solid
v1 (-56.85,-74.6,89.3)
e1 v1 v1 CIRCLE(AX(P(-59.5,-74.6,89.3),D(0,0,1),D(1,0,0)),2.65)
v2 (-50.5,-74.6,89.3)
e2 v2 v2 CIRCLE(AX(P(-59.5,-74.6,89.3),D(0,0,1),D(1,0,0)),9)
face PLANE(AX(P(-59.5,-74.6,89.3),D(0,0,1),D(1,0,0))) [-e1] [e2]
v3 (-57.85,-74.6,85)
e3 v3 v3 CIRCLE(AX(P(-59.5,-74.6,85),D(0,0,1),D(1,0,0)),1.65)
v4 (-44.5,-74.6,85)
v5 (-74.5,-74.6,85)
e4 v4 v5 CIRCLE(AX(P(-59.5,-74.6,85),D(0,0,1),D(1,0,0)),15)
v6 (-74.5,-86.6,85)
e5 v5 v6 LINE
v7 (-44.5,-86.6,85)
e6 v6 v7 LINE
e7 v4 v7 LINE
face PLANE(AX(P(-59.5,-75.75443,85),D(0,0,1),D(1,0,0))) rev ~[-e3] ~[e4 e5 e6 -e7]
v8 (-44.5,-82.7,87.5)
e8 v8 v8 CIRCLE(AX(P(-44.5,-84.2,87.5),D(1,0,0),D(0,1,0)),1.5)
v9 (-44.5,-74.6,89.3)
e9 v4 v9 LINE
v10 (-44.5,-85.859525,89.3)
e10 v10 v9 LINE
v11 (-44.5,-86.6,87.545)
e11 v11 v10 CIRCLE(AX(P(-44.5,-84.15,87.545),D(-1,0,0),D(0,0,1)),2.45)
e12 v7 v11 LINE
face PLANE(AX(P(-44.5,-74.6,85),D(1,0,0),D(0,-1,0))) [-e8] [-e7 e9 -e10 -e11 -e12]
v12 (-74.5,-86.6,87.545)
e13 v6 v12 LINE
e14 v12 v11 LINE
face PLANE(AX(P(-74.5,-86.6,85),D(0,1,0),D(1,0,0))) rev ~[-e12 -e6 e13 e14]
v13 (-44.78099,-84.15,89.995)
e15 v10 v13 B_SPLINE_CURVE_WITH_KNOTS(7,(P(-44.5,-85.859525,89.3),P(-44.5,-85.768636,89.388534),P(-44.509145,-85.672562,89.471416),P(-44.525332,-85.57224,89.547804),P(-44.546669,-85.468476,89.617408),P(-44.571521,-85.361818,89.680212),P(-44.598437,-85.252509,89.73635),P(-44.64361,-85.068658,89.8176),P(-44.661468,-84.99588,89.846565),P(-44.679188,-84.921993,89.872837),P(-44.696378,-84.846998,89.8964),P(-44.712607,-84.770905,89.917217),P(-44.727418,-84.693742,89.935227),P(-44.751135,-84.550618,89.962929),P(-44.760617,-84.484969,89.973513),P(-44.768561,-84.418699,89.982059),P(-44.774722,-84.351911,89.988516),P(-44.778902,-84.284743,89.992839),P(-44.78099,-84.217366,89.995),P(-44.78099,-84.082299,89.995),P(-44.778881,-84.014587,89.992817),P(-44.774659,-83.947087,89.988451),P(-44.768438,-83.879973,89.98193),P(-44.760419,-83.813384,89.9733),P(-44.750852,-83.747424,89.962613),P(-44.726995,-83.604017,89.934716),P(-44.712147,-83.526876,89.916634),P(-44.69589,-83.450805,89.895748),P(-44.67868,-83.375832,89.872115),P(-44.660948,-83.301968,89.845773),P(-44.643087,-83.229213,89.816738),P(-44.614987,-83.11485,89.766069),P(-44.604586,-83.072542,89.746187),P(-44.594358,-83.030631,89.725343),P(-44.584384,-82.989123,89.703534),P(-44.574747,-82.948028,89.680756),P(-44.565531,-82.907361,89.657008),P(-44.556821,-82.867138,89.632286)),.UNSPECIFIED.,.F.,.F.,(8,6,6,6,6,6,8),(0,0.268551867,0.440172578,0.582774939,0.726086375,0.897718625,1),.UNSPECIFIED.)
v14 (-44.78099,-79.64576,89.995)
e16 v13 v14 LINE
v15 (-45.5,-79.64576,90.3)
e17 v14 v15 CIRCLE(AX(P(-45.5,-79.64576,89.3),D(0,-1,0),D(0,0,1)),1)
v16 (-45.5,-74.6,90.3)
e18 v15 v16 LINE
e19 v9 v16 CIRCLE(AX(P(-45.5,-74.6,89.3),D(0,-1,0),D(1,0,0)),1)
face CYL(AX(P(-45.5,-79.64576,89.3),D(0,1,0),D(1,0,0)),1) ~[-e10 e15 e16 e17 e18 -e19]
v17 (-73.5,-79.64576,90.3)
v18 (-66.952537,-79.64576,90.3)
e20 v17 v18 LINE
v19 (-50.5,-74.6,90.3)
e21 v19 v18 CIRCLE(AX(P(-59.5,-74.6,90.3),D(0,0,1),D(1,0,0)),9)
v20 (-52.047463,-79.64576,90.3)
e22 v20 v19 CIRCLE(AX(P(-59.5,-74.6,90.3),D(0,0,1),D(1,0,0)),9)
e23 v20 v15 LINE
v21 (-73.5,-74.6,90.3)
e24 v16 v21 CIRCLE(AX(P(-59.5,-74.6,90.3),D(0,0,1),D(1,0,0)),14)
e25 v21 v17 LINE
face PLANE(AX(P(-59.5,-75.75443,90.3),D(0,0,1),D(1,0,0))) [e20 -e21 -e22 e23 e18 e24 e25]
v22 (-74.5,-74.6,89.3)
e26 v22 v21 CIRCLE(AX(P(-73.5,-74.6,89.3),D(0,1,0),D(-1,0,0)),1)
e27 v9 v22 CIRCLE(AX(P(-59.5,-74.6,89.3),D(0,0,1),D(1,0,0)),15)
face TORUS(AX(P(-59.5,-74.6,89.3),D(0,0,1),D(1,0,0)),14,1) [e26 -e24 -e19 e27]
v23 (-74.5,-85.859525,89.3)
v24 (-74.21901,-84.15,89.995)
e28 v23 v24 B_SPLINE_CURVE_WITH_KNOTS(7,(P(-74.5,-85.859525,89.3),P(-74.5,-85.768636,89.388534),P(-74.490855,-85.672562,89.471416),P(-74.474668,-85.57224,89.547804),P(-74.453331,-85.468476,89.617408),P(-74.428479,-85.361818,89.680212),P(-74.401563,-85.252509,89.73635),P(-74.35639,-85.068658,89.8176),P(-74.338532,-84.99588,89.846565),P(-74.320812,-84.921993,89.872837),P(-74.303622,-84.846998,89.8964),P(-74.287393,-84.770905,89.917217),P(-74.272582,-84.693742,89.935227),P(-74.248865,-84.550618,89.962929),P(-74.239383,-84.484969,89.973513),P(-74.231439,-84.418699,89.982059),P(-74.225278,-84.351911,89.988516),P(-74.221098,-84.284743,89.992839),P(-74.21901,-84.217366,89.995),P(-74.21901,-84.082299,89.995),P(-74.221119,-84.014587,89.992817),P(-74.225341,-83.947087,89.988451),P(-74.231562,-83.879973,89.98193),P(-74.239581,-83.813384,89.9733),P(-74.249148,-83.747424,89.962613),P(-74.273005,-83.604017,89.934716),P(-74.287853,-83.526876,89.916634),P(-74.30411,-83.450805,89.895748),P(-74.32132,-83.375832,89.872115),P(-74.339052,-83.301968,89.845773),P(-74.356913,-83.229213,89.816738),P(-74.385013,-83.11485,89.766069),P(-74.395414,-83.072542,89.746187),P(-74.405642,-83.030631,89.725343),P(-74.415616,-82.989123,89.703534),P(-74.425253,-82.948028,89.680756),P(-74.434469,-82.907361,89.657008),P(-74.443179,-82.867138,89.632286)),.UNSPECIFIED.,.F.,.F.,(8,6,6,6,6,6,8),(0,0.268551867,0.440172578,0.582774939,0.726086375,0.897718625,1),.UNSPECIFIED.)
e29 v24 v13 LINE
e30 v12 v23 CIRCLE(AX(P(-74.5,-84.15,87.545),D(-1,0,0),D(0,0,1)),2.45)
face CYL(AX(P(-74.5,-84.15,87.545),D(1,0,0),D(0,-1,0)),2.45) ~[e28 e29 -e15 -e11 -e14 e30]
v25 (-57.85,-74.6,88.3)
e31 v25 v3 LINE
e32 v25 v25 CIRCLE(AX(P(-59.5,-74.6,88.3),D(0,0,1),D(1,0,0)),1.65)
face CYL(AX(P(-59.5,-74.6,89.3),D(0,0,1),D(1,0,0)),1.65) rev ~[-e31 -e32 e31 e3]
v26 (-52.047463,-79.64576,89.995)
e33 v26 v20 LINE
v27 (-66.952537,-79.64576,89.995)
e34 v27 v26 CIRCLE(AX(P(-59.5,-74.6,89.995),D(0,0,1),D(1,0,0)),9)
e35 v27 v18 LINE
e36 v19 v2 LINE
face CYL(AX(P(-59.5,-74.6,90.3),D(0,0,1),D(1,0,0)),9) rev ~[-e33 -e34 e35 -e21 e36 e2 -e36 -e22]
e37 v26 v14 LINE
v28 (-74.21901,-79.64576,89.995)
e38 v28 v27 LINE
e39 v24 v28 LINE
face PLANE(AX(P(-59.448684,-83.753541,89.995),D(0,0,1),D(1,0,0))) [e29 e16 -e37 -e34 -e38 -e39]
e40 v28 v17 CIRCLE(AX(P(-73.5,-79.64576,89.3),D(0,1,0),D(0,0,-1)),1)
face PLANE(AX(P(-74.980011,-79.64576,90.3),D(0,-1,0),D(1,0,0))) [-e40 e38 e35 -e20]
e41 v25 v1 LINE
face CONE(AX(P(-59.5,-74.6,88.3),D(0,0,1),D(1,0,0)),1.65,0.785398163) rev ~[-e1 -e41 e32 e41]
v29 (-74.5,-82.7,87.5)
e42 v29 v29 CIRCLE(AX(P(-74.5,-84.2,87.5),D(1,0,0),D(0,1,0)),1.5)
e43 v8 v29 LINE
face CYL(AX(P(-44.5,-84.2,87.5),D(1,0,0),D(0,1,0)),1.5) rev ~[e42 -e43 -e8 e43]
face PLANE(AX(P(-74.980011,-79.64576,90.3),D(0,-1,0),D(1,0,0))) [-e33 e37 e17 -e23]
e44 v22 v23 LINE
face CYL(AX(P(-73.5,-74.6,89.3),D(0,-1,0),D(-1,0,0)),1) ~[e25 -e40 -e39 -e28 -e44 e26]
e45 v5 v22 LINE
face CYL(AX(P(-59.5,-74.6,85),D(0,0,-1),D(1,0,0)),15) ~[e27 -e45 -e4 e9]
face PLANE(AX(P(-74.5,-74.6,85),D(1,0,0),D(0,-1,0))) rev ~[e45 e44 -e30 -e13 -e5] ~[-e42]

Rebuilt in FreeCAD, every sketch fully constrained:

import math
import FreeCAD as App
import Part
import Sketcher

V = App.Vector
Q = App.Units.Quantity


def edges_at(feature, points):
    """Names of the edges that pass closest to the given points."""
    edges = feature.Shape.Edges
    near = lambda p: min(range(len(edges)), key=lambda i: edges[i].distToShape(Part.Vertex(*p))[0])
    return sorted({f"Edge{near(p) + 1}" for p in points})

doc = App.newDocument("Part")
body = doc.addObject("PartDesign::Body", "Body")

sketch1 = doc.addObject("Sketcher::SketchObject", "Sketch")
body.addObject(sketch1)
sketch1.AttachmentSupport = (doc.XY_Plane, [""])
sketch1.MapMode = "FlatFace"
sketch1.addGeometry(Part.ArcOfCircle(Part.Circle(V(0, 0, 0), V(0, 0, 1), 15), math.radians(0), math.radians(180)), False)
sketch1.addGeometry(Part.LineSegment(V(-15, 0, 0), V(-15, -12, 0)), False)
sketch1.addGeometry(Part.LineSegment(V(-15, -12, 0), V(15, -12, 0)), False)
sketch1.addGeometry(Part.LineSegment(V(15, -12, 0), V(15, 0, 0)), False)
sketch1.addConstraint(Sketcher.Constraint("Tangent", 0, 2, 1, 1))
sketch1.addConstraint(Sketcher.Constraint("Coincident", 1, 2, 2, 1))
sketch1.addConstraint(Sketcher.Constraint("Coincident", 2, 2, 3, 1))
sketch1.addConstraint(Sketcher.Constraint("Tangent", 3, 2, 0, 1))
sketch1.addConstraint(Sketcher.Constraint("Vertical", 1))
sketch1.addConstraint(Sketcher.Constraint("Horizontal", 2))
sketch1.addConstraint(Sketcher.Constraint("Vertical", 3))
sketch1.addConstraint(Sketcher.Constraint("Coincident", 0, 3, -1, 1))
sketch1.addConstraint(Sketcher.Constraint("Radius", 0, Q("15 mm")))
sketch1.addConstraint(Sketcher.Constraint("DistanceY", 1, 2, 1, 1, Q("12 mm")))
pad1 = doc.addObject("PartDesign::Pad", "Pad")
body.addObject(pad1)
pad1.Profile = sketch1
pad1.Length = 5.3

sketch2 = doc.addObject("Sketcher::SketchObject", "Sketch001")
body.addObject(sketch2)
sketch2.AttachmentSupport = (doc.XY_Plane, [""])
sketch2.MapMode = "FlatFace"
sketch2.AttachmentOffset = App.Placement(V(0, 0, 5.3), App.Rotation())
sketch2.addGeometry(Part.LineSegment(V(-15, -5, 0), V(-15, -13, 0)), False)
sketch2.addGeometry(Part.LineSegment(V(-15, -13, 0), V(16, -13, 0)), False)
sketch2.addGeometry(Part.LineSegment(V(16, -13, 0), V(16, -5, 0)), False)
sketch2.addGeometry(Part.LineSegment(V(16, -5, 0), V(-15, -5, 0)), False)
sketch2.addConstraint(Sketcher.Constraint("Coincident", 0, 2, 1, 1))
sketch2.addConstraint(Sketcher.Constraint("Coincident", 1, 2, 2, 1))
sketch2.addConstraint(Sketcher.Constraint("Coincident", 2, 2, 3, 1))
sketch2.addConstraint(Sketcher.Constraint("Coincident", 3, 2, 0, 1))
sketch2.addConstraint(Sketcher.Constraint("Vertical", 0))
sketch2.addConstraint(Sketcher.Constraint("Horizontal", 1))
sketch2.addConstraint(Sketcher.Constraint("Vertical", 2))
sketch2.addConstraint(Sketcher.Constraint("Horizontal", 3))
sketch2.addConstraint(Sketcher.Constraint("DistanceY", 0, 2, 0, 1, Q("8.215561 mm")))
sketch2.addConstraint(Sketcher.Constraint("DistanceX", 1, 1, 1, 2, Q("31.062653 mm")))
sketch2.addConstraint(Sketcher.Constraint("DistanceX", 0, 2, -1, 1, Q("15.480011 mm")))
sketch2.addConstraint(Sketcher.Constraint("DistanceY", 0, 2, -1, 1, Q("13.261321 mm")))
pocket1 = doc.addObject("PartDesign::Pocket", "Pocket")
body.addObject(pocket1)
pocket1.Profile = sketch2
pocket1.Length = 0.305
doc.recompute()

fillet = doc.addObject("PartDesign::Fillet", "Fillet")
body.addObject(fillet)
fillet.Base = (pocket1, edges_at(pocket1, [(0, -12, 4.995)]))
fillet.Radius = 2.45
doc.recompute()

fillet2 = doc.addObject("PartDesign::Fillet", "Fillet001")
body.addObject(fillet2)
fillet2.Base = (fillet, edges_at(fillet, [(0, 15, 5.3)]))
fillet2.Radius = 1

sketch3 = doc.addObject("Sketcher::SketchObject", "Sketch002")
body.addObject(sketch3)
sketch3.AttachmentSupport = (doc.XY_Plane, [""])
sketch3.MapMode = "FlatFace"
sketch3.AttachmentOffset = App.Placement(V(0, 0, 5.3), App.Rotation())
sketch3.addGeometry(Part.Circle(V(0, 0, 0), V(0, 0, 1), 9), False)
sketch3.addConstraint(Sketcher.Constraint("Coincident", 0, 3, -1, 1))
sketch3.addConstraint(Sketcher.Constraint("Diameter", 0, Q("18 mm")))
pocket2 = doc.addObject("PartDesign::Pocket", "Pocket001")
body.addObject(pocket2)
pocket2.Profile = sketch3
pocket2.Length = 1

sketch4 = doc.addObject("Sketcher::SketchObject", "Sketch003")
body.addObject(sketch4)
sketch4.AttachmentSupport = (doc.XY_Plane, [""])
sketch4.MapMode = "FlatFace"
sketch4.AttachmentOffset = App.Placement(V(0, 0, 4.3), App.Rotation())
sketch4.addGeometry(Part.Circle(V(0, 0, 0), V(0, 0, 1), 1.6), False)
sketch4.addConstraint(Sketcher.Constraint("Coincident", 0, 3, -1, 1))
sketch4.addConstraint(Sketcher.Constraint("Diameter", 0, Q("3.3 mm")))
pocket3 = doc.addObject("PartDesign::Pocket", "Pocket002")
body.addObject(pocket3)
pocket3.Profile = sketch4
pocket3.Length = 5

sketch5 = doc.addObject("Sketcher::SketchObject", "Sketch004")
body.addObject(sketch5)
sketch5.AttachmentSupport = (doc.YZ_Plane, [""])
sketch5.MapMode = "FlatFace"
sketch5.AttachmentOffset = App.Placement(V(0, 0, 15), App.Rotation())
sketch5.addGeometry(Part.Circle(V(-9.6, 2.5, 0), V(0, 0, 1), 1.5), False)
sketch5.addConstraint(Sketcher.Constraint("Diameter", 0, Q("3 mm")))
sketch5.addConstraint(Sketcher.Constraint("DistanceX", 0, 3, -1, 1, Q("9.6 mm")))
sketch5.addConstraint(Sketcher.Constraint("DistanceY", -1, 1, 0, 3, Q("2.5 mm")))
pocket4 = doc.addObject("PartDesign::Pocket", "Pocket003")
body.addObject(pocket4)
pocket4.Profile = sketch5
pocket4.Length = 31
doc.recompute()

chamfer = doc.addObject("PartDesign::Chamfer", "Chamfer")
body.addObject(chamfer)
chamfer.Base = (pocket4, edges_at(pocket4, [(-1.65, 0, 4.3)]))
chamfer.Size = 1
body2 = doc.addObject("PartDesign::Body", "Body001")
doc.recompute()

body.Placement = App.Placement(V(-59.5, -74.6, 85), App.Rotation(V(0, 0, 1), 0))
boolean = doc.addObject("PartDesign::Boolean", "Boolean")
body2.addObject(boolean)
boolean.Type = "Fuse"
boolean.addObjects([body])

doc.recompute()
